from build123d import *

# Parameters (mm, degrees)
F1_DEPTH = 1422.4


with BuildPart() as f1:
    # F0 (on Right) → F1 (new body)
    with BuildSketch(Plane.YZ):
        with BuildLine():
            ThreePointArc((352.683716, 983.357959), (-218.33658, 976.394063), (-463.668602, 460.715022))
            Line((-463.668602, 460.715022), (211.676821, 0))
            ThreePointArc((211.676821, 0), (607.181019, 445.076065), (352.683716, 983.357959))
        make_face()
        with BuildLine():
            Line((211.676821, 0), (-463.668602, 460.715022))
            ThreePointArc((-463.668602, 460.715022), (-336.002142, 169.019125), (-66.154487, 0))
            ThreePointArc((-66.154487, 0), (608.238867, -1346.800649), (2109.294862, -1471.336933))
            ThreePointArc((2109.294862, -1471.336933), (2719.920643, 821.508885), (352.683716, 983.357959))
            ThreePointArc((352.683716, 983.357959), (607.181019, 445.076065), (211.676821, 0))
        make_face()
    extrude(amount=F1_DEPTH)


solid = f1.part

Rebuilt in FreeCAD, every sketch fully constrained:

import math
import FreeCAD as App
import Part
import Sketcher
from FreeCAD import Vector
Q = App.Units.Quantity

doc = App.newDocument("Part")
body = doc.addObject("PartDesign::Body", "Body")

sketch1 = body.newObject("Sketcher::SketchObject", "Sketch")
sketch1.AttachmentSupport = (doc.getObject("YZ_Plane"), [""])
sketch1.MapMode = "FlatFace"
sketch1.addGeometry(Part.ArcOfCircle(Part.Circle(Vector(73, 522, 0), Vector(0, 0, 1), 540), math.radians(59), math.radians(186)), False)
sketch1.addGeometry(Part.ArcOfCircle(Part.Circle(Vector(73, 522, 0), Vector(0, 0, 1), 540), math.radians(-174), math.radians(-105)), False)
sketch1.addGeometry(Part.ArcOfCircle(Part.Circle(Vector(1470, -73, 0), Vector(0, 0, 1), 1537), math.radians(177), math.radians(295)), False)
sketch1.addGeometry(Part.ArcOfCircle(Part.Circle(Vector(1470, -73, 0), Vector(0, 0, 1), 1537), math.radians(-65), math.radians(137)), False)
sketch1.addConstraint(Sketcher.Constraint("Coincident", 0, 2, 1, 1))
sketch1.addConstraint(Sketcher.Constraint("Coincident", 1, 2, 2, 1))
sketch1.addConstraint(Sketcher.Constraint("Coincident", 2, 2, 3, 1))
sketch1.addConstraint(Sketcher.Constraint("Coincident", 3, 2, 0, 1))
sketch1.addConstraint(Sketcher.Constraint("Coincident", 1, 3, 0, 3))
sketch1.addConstraint(Sketcher.Constraint("Coincident", 3, 3, 2, 3))
sketch1.addConstraint(Sketcher.Constraint("PointOnObject", 1, 2, -1))
sketch1.addConstraint(Sketcher.Constraint("Radius", 1, Q("539.886169 mm")))
sketch1.addConstraint(Sketcher.Constraint("Radius", 2, Q("1537.494842 mm")))
sketch1.addConstraint(Sketcher.Constraint("DistanceX", 0, 2, -1, 1, Q("463.668602 mm")))
sketch1.addConstraint(Sketcher.Constraint("DistanceY", 2, 3, 1, 3, Q("594.948501 mm")))
sketch1.addConstraint(Sketcher.Constraint("DistanceY", 2, 2, 2, 3, Q("1398.096699 mm")))
sketch1.addConstraint(Sketcher.Constraint("DistanceX", -1, 1, 1, 3, Q("72.761169 mm")))
sketch1.addConstraint(Sketcher.Constraint("DistanceY", -1, 1, 0, 3, Q("521.708265 mm")))
pad1 = body.newObject("PartDesign::Pad", "Pad")
pad1.Profile = sketch1
pad1.Length = Q("56 in")

doc.recompute()
